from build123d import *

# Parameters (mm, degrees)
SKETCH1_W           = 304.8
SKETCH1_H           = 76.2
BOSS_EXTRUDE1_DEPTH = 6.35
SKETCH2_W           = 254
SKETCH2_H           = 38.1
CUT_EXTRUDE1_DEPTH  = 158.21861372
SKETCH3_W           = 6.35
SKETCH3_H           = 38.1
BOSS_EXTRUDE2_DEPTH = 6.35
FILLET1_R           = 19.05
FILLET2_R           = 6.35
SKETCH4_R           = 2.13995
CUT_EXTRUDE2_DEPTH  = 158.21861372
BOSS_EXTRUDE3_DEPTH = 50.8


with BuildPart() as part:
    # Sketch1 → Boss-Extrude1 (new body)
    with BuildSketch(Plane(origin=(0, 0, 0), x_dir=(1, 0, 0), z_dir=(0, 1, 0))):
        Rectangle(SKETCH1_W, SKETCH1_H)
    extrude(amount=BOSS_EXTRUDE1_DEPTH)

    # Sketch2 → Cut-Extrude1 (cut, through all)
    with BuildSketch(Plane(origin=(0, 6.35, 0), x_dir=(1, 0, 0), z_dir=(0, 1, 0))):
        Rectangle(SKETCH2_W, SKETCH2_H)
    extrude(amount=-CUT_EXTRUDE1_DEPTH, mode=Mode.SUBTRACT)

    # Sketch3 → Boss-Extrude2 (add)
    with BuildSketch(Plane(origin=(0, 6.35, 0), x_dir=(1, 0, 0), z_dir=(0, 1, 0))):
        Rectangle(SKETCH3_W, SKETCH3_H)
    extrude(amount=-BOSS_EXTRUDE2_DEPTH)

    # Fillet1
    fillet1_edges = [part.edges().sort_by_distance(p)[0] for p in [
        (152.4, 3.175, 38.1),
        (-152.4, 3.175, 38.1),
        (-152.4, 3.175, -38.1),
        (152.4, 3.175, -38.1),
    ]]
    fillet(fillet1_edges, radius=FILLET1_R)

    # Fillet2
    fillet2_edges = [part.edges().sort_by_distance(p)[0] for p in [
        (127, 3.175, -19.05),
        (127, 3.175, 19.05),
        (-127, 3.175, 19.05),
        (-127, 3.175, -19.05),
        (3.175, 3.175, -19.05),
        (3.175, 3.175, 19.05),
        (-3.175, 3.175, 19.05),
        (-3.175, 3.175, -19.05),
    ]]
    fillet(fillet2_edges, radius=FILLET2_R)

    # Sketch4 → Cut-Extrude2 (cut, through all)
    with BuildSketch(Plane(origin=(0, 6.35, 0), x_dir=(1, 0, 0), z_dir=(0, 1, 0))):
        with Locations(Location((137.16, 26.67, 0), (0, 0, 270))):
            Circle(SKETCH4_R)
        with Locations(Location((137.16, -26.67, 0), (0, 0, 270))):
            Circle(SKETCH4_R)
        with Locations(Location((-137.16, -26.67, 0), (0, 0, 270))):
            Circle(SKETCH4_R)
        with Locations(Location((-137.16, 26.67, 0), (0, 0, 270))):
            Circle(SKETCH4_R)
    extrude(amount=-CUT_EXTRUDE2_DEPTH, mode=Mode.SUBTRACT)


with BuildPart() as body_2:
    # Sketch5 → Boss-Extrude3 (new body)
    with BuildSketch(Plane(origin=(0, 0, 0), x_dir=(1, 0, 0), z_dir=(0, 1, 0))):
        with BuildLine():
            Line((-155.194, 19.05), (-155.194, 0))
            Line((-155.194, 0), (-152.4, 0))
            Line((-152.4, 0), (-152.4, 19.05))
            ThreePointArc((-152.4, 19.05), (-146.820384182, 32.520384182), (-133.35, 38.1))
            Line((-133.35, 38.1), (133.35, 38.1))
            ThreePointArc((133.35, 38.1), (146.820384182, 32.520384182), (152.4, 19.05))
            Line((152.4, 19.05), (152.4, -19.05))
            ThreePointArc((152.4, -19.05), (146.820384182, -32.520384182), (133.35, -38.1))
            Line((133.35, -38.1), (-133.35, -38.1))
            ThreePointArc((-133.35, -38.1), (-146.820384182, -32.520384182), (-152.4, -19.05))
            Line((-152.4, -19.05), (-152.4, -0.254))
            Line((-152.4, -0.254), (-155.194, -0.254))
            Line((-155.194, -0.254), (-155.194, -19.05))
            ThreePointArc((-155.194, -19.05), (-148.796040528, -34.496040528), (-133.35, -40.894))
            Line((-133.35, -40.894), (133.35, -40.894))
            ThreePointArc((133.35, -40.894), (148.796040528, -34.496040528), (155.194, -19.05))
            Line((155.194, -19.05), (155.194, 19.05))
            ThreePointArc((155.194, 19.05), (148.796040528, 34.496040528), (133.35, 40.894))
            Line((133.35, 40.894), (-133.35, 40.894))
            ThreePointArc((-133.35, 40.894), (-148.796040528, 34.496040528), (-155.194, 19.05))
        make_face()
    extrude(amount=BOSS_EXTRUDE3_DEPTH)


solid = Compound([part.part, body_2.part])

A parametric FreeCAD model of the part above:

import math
import FreeCAD as App
import Part
import Sketcher
from FreeCAD import Vector
Q = App.Units.Quantity


def edges_at(feature, points):
    """Names of the edges that pass closest to the given points."""
    edges = feature.Shape.Edges
    near = lambda p: min(range(len(edges)), key=lambda i: edges[i].distToShape(Part.Vertex(*p))[0])
    return sorted({f"Edge{near(p) + 1}" for p in points})


def add_polygon(sketch, points):
    """Adds a closed chain of lines whose ends are joined by coincident constraints."""
    first, n = sketch.GeometryCount, len(points)
    for a, b in zip(points, points[1:] + points[:1]):
        sketch.addGeometry(Part.LineSegment(App.Vector(*a, 0), App.Vector(*b, 0)), False)
    for i in range(n):
        sketch.addConstraint(Sketcher.Constraint("Coincident", first + i, 2, first + (i + 1) % n, 1))

doc = App.newDocument("Part")
body = doc.addObject("PartDesign::Body", "Body")

# Sketch on XZ plane
sketch1 = body.newObject("Sketcher::SketchObject", "Sketch")
sketch1.AttachmentSupport = (doc.getObject("XZ_Plane"), [""])
sketch1.MapMode = "FlatFace"
add_polygon(sketch1, [(-152.4, -38.1), (-152.4, 38.1), (152.4, 38.1), (152.4, -38.1)])  # lines 0-3
sketch1.addConstraint([
    Sketcher.Constraint("Vertical", 0),
    Sketcher.Constraint("Horizontal", 1),
    Sketcher.Constraint("Vertical", 2),
    Sketcher.Constraint("Horizontal", 3),
    Sketcher.Constraint("Symmetric", 0, 2, 2, 2, -1, 1),
    Sketcher.Constraint("DistanceX", 1, 1, 1, 2, Q("12 in")),
    Sketcher.Constraint("DistanceY", 0, 1, 0, 2, Q("3 in")),
])
pad1 = body.newObject("PartDesign::Pad", "Pad")
pad1.Profile = sketch1
pad1.Length = Q("0.25 in")
pad1.Reversed = True

# Sketch on XZ plane
sketch2 = body.newObject("Sketcher::SketchObject", "Sketch001")
sketch2.AttachmentSupport = (doc.getObject("XZ_Plane"), [""])
sketch2.MapMode = "FlatFace"
sketch2.AttachmentOffset = App.Placement(Vector(0, 0, -0.25 * 25.4), App.Rotation())
add_polygon(sketch2, [(-127, -19.05), (-127, 19.05), (127, 19.05), (127, -19.05)])  # lines 0-3
sketch2.addConstraint([
    Sketcher.Constraint("Vertical", 0),
    Sketcher.Constraint("Horizontal", 1),
    Sketcher.Constraint("Vertical", 2),
    Sketcher.Constraint("Horizontal", 3),
    Sketcher.Constraint("Symmetric", 0, 2, 2, 2, -1, 1),
    Sketcher.Constraint("DistanceX", 1, 1, 1, 2, Q("10 in")),
    Sketcher.Constraint("DistanceY", 0, 1, 0, 2, Q("1.5 in")),
])
pocket1 = body.newObject("PartDesign::Pocket", "Pocket")
pocket1.Profile = sketch2
pocket1.Type = "ThroughAll"
pocket1.Reversed = True

# Sketch on XZ plane
sketch3 = body.newObject("Sketcher::SketchObject", "Sketch002")
sketch3.AttachmentSupport = (doc.getObject("XZ_Plane"), [""])
sketch3.MapMode = "FlatFace"
sketch3.AttachmentOffset = App.Placement(Vector(0, 0, -0.25 * 25.4), App.Rotation())
add_polygon(sketch3, [(-3.175, -19.05), (-3.175, 19.05), (3.175, 19.05), (3.175, -19.05)])  # lines 0-3
sketch3.addConstraint([
    Sketcher.Constraint("Vertical", 0),
    Sketcher.Constraint("Horizontal", 1),
    Sketcher.Constraint("Vertical", 2),
    Sketcher.Constraint("Horizontal", 3),
    Sketcher.Constraint("Symmetric", 0, 2, 2, 2, -1, 1),
    Sketcher.Constraint("DistanceY", 0, 1, 0, 2, Q("1.5 in")),
    Sketcher.Constraint("DistanceX", 1, 1, 1, 2, Q("0.25 in")),
])
pad2 = body.newObject("PartDesign::Pad", "Pad001")
pad2.Profile = sketch3
pad2.Length = Q("0.25 in")
doc.recompute()

fillet = body.newObject("PartDesign::Fillet", "Fillet")
fillet.Base = (pad2, edges_at(pad2, [
    (152.4, 3.175, 38.1),
    (-152.4, 3.175, 38.1),
    (-152.4, 3.175, -38.1),
    (152.4, 3.175, -38.1),
]))
fillet.Radius = Q("0.75 in")
doc.recompute()

fillet2 = body.newObject("PartDesign::Fillet", "Fillet001")
fillet2.Base = (fillet, edges_at(fillet, [
    (127, 3.175, -19.05),
    (127, 3.175, 19.05),
    (-127, 3.175, 19.05),
    (-127, 3.175, -19.05),
    (3.175, 3.175, -19.05),
    (3.175, 3.175, 19.05),
    (-3.175, 3.175, 19.05),
    (-3.175, 3.175, -19.05),
]))
fillet2.Radius = Q("0.25 in")

# Sketch on XZ plane
sketch4 = body.newObject("Sketcher::SketchObject", "Sketch003")
sketch4.AttachmentSupport = (doc.getObject("XZ_Plane"), [""])
sketch4.MapMode = "FlatFace"
sketch4.AttachmentOffset = App.Placement(Vector(0, 0, -0.25 * 25.4), App.Rotation())
sketch4.addGeometry([
    Part.Circle(Vector(137.16, -26.67, 0), Vector(0, 0, 1), 2.13995),
    Part.Circle(Vector(137.16, 26.67, 0), Vector(0, 0, 1), 2.13995),
    Part.Circle(Vector(-137.16, 26.67, 0), Vector(0, 0, 1), 2.13995),
    Part.Circle(Vector(-137.16, -26.67, 0), Vector(0, 0, 1), 2.13995),
], False)
sketch4.addConstraint([
    Sketcher.Constraint("Equal", 0, 1),
    Sketcher.Constraint("Equal", 1, 2),
    Sketcher.Constraint("Equal", 2, 3),
    Sketcher.Constraint("Symmetric", 0, 3, 2, 3, -1, 1),
    Sketcher.Constraint("Symmetric", 1, 3, 3, 3, -1, 1),
    Sketcher.Constraint("Symmetric", 1, 3, 2, 3, -2),
    Sketcher.Constraint("Diameter", 0, Q("0.1685 in")),
    Sketcher.Constraint("DistanceX", -1, 1, 0, 3, Q("5.4 in")),
    Sketcher.Constraint("DistanceY", 0, 3, 1, 3, Q("2.1 in")),
])
pocket2 = body.newObject("PartDesign::Pocket", "Pocket001")
pocket2.Profile = sketch4
pocket2.Type = "ThroughAll"
pocket2.Reversed = True
body2 = doc.addObject("PartDesign::Body", "Body001")

# Sketch on XZ plane
sketch5 = body2.newObject("Sketcher::SketchObject", "Sketch004")
sketch5.AttachmentSupport = (doc.getObject("XZ_Plane001"), [""])
sketch5.MapMode = "FlatFace"
sketch5.addGeometry([
    Part.LineSegment(Vector(-155.194, -19.05, 0), Vector(-155.194, 0, 0)),  # 0
    Part.LineSegment(Vector(-155.194, 0, 0), Vector(-152.4, 0, 0)),  # 1
    Part.LineSegment(Vector(-152.4, 0, 0), Vector(-152.4, -19.05, 0)),  # 2
    Part.ArcOfCircle(Part.Circle(Vector(-133.35, -19.05, 0), Vector(0, 0, 1), 19.05), math.radians(180), math.radians(270)),  # 3
    Part.LineSegment(Vector(-133.35, -38.1, 0), Vector(133.35, -38.1, 0)),  # 4
    Part.ArcOfCircle(Part.Circle(Vector(133.35, -19.05, 0), Vector(0, 0, 1), 19.05), math.radians(-90), math.radians(0)),  # 5
    Part.LineSegment(Vector(152.4, -19.05, 0), Vector(152.4, 19.05, 0)),  # 6
    Part.ArcOfCircle(Part.Circle(Vector(133.35, 19.05, 0), Vector(0, 0, 1), 19.05), math.radians(0), math.radians(90)),  # 7
    Part.LineSegment(Vector(133.35, 38.1, 0), Vector(-133.35, 38.1, 0)),  # 8
    Part.ArcOfCircle(Part.Circle(Vector(-133.35, 19.05, 0), Vector(0, 0, 1), 19.05), math.radians(90), math.radians(180)),  # 9
    Part.LineSegment(Vector(-152.4, 19.05, 0), Vector(-152.4, 0.254, 0)),  # 10
    Part.LineSegment(Vector(-152.4, 0.254, 0), Vector(-155.194, 0.254, 0)),  # 11
    Part.LineSegment(Vector(-155.194, 0.254, 0), Vector(-155.194, 19.05, 0)),  # 12
    Part.ArcOfCircle(Part.Circle(Vector(-133.35, 19.05, 0), Vector(0, 0, 1), 21.844), math.radians(90), math.radians(180)),  # 13
    Part.LineSegment(Vector(-133.35, 40.894, 0), Vector(133.35, 40.894, 0)),  # 14
    Part.ArcOfCircle(Part.Circle(Vector(133.35, 19.05, 0), Vector(0, 0, 1), 21.844), math.radians(0), math.radians(90)),  # 15
    Part.LineSegment(Vector(155.194, 19.05, 0), Vector(155.194, -19.05, 0)),  # 16
    Part.ArcOfCircle(Part.Circle(Vector(133.35, -19.05, 0), Vector(0, 0, 1), 21.844), math.radians(-90), math.radians(0)),  # 17
    Part.LineSegment(Vector(133.35, -40.894, 0), Vector(-133.35, -40.894, 0)),  # 18
    Part.ArcOfCircle(Part.Circle(Vector(-133.35, -19.05, 0), Vector(0, 0, 1), 21.844), math.radians(-180), math.radians(-90)),  # 19
], False)
sketch5.addConstraint([
    Sketcher.Constraint("Coincident", 0, 2, 1, 1),
    Sketcher.Constraint("Coincident", 1, 2, 2, 1),
    Sketcher.Constraint("Tangent", 2, 2, 3, 1),
    Sketcher.Constraint("Tangent", 3, 2, 4, 1),
    Sketcher.Constraint("Tangent", 4, 2, 5, 1),
    Sketcher.Constraint("Tangent", 5, 2, 6, 1),
    Sketcher.Constraint("Tangent", 6, 2, 7, 1),
    Sketcher.Constraint("Tangent", 7, 2, 8, 1),
    Sketcher.Constraint("Tangent", 8, 2, 9, 1),
    Sketcher.Constraint("Tangent", 9, 2, 10, 1),
    Sketcher.Constraint("Coincident", 10, 2, 11, 1),
    Sketcher.Constraint("Coincident", 11, 2, 12, 1),
    Sketcher.Constraint("Tangent", 12, 2, 13, 2),
    Sketcher.Constraint("Tangent", 13, 1, 14, 1),
    Sketcher.Constraint("Tangent", 14, 2, 15, 2),
    Sketcher.Constraint("Tangent", 15, 1, 16, 1),
    Sketcher.Constraint("Tangent", 16, 2, 17, 2),
    Sketcher.Constraint("Tangent", 17, 1, 18, 1),
    Sketcher.Constraint("Tangent", 18, 2, 19, 2),
    Sketcher.Constraint("Tangent", 19, 1, 0, 1),
    Sketcher.Constraint("Vertical", 0),
    Sketcher.Constraint("Horizontal", 1),
    Sketcher.Constraint("Vertical", 2),
    Sketcher.Constraint("Horizontal", 4),
    Sketcher.Constraint("Vertical", 6),
    Sketcher.Constraint("Horizontal", 8),
    Sketcher.Constraint("Vertical", 10),
    Sketcher.Constraint("Horizontal", 11),
    Sketcher.Constraint("Vertical", 12),
    Sketcher.Constraint("Horizontal", 14),
    Sketcher.Constraint("Vertical", 16),
    Sketcher.Constraint("Horizontal", 18),
    Sketcher.Constraint("Coincident", 13, 3, 9, 3),
    Sketcher.Constraint("Coincident", 15, 3, 7, 3),
    Sketcher.Constraint("Coincident", 17, 3, 5, 3),
    Sketcher.Constraint("Coincident", 19, 3, 3, 3),
    Sketcher.Constraint("Equal", 3, 5),
    Sketcher.Constraint("Equal", 5, 7),
    Sketcher.Constraint("Equal", 7, 9),
    Sketcher.Constraint("Symmetric", 3, 3, 7, 3, -1, 1),
    Sketcher.Constraint("PointOnObject", 0, 2, -1),
    Sketcher.Constraint("Vertical", 3, 3, 9, 3),
    Sketcher.Constraint("Radius", 3, Q("0.75 in")),
    Sketcher.Constraint("Radius", 13, Q("0.86 in")),
    Sketcher.Constraint("DistanceX", 4, 1, 4, 2, Q("10.5 in")),
    Sketcher.Constraint("DistanceY", 6, 1, 6, 2, Q("1.5 in")),
    Sketcher.Constraint("DistanceY", 10, 2, 10, 1, Q("0.74 in")),
])
pad3 = body2.newObject("PartDesign::Pad", "Pad002")
pad3.Profile = sketch5
pad3.Length = Q("2 in")
pad3.Reversed = True

doc.recompute()
